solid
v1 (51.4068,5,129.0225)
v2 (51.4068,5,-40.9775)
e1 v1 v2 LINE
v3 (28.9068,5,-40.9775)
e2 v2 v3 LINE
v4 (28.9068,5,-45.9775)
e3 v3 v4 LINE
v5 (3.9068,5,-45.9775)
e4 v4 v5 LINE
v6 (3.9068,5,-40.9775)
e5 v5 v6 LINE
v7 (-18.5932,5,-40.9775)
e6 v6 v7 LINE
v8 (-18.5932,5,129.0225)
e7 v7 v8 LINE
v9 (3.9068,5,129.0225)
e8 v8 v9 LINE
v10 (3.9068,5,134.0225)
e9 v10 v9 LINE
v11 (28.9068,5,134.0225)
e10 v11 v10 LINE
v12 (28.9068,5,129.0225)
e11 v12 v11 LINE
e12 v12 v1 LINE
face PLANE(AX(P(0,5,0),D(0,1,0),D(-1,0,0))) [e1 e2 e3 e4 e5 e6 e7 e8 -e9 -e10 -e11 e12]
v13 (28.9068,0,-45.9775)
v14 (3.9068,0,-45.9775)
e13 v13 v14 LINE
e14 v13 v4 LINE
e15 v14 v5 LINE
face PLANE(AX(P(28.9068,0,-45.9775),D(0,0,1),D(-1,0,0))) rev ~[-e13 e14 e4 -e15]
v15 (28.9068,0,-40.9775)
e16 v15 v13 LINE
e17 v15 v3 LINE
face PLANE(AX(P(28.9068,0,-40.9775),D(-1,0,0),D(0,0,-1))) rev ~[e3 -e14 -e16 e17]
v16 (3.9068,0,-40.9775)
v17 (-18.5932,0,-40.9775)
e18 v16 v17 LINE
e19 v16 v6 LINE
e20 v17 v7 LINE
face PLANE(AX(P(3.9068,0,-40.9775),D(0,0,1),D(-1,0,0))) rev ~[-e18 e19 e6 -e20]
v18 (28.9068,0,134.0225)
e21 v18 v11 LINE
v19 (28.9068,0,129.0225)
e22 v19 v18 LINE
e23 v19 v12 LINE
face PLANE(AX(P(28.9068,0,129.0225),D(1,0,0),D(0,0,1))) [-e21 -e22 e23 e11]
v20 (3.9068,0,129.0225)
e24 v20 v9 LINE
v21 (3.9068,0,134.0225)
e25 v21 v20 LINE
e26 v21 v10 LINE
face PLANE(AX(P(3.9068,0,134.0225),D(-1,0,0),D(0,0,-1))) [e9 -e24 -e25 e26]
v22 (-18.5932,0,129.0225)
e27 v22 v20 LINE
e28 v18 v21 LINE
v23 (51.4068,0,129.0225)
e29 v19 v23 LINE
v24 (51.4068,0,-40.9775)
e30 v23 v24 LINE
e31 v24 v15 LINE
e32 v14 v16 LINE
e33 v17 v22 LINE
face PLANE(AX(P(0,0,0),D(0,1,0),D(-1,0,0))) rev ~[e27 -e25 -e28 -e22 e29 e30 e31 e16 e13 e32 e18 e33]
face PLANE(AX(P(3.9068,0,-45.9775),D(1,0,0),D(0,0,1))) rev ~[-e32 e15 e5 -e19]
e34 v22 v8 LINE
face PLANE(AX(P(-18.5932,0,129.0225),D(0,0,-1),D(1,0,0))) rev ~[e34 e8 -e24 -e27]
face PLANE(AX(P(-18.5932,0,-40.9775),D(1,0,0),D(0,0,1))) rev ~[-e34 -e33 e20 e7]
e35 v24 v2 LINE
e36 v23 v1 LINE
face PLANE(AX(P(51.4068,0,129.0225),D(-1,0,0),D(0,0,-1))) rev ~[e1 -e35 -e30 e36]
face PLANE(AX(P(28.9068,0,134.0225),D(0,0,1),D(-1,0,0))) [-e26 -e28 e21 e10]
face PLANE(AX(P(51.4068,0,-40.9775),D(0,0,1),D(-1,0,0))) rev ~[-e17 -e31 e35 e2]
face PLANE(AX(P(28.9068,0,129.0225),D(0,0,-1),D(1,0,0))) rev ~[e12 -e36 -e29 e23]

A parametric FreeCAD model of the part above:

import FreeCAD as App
import Part
import Sketcher

V = App.Vector

doc = App.newDocument("Part")
body = doc.addObject("PartDesign::Body", "Body")

# Sketch on XZ plane
sketch1 = body.newObject("Sketcher::SketchObject", "Sketch")
sketch1.AttachmentSupport = (doc.getObject("XZ_Plane"), [""])
sketch1.MapMode = "FlatFace"
sketch1.addGeometry([
    Part.LineSegment(V(-18.5932, -40.9775, 0), V(-18.5932, 129.0225, 0)),  # 0
    Part.LineSegment(V(-18.5932, 129.0225, 0), V(3.9068, 129.0225, 0)),  # 1
    Part.LineSegment(V(3.9068, 129.0225, 0), V(3.9068, 134.0225, 0)),  # 2
    Part.LineSegment(V(3.9068, 134.0225, 0), V(28.9068, 134.0225, 0)),  # 3
    Part.LineSegment(V(28.9068, 134.0225, 0), V(28.9068, 129.0225, 0)),  # 4
    Part.LineSegment(V(28.9068, 129.0225, 0), V(51.4068, 129.0225, 0)),  # 5
    Part.LineSegment(V(51.4068, 129.0225, 0), V(51.4068, -40.9775, 0)),  # 6
    Part.LineSegment(V(51.4068, -40.9775, 0), V(28.9068, -40.9775, 0)),  # 7
    Part.LineSegment(V(28.9068, -40.9775, 0), V(28.9068, -45.9775, 0)),  # 8
    Part.LineSegment(V(28.9068, -45.9775, 0), V(3.9068, -45.9775, 0)),  # 9
    Part.LineSegment(V(3.9068, -45.9775, 0), V(3.9068, -40.9775, 0)),  # 10
    Part.LineSegment(V(3.9068, -40.9775, 0), V(-18.5932, -40.9775, 0)),  # 11
], False)
sketch1.addConstraint([
    Sketcher.Constraint("Coincident", 0, 2, 1, 1),
    Sketcher.Constraint("Coincident", 1, 2, 2, 1),
    Sketcher.Constraint("Coincident", 2, 2, 3, 1),
    Sketcher.Constraint("Coincident", 3, 2, 4, 1),
    Sketcher.Constraint("Coincident", 4, 2, 5, 1),
    Sketcher.Constraint("Coincident", 5, 2, 6, 1),
    Sketcher.Constraint("Coincident", 6, 2, 7, 1),
    Sketcher.Constraint("Coincident", 7, 2, 8, 1),
    Sketcher.Constraint("Coincident", 8, 2, 9, 1),
    Sketcher.Constraint("Coincident", 9, 2, 10, 1),
    Sketcher.Constraint("Coincident", 10, 2, 11, 1),
    Sketcher.Constraint("Coincident", 11, 2, 0, 1),
    Sketcher.Constraint("Vertical", 0),
    Sketcher.Constraint("Horizontal", 1),
    Sketcher.Constraint("Vertical", 2),
    Sketcher.Constraint("Horizontal", 3),
    Sketcher.Constraint("Vertical", 4),
    Sketcher.Constraint("Horizontal", 5),
    Sketcher.Constraint("Vertical", 6),
    Sketcher.Constraint("Horizontal", 7),
    Sketcher.Constraint("Vertical", 8),
    Sketcher.Constraint("Horizontal", 9),
    Sketcher.Constraint("Vertical", 10),
    Sketcher.Constraint("Horizontal", 11),
    Sketcher.Constraint("Horizontal", 1, 2, 4, 2),
    Sketcher.Constraint("Horizontal", 7, 2, 10, 2),
    Sketcher.Constraint("Vertical", 4, 2, 7, 2),
    Sketcher.Constraint("Vertical", 2, 2, 9, 2),
    Sketcher.Constraint("Equal", 1, 5),
    Sketcher.Constraint("Equal", 4, 8),
    Sketcher.Constraint("DistanceX", 3, 1, 3, 2, 25.0),
    Sketcher.Constraint("DistanceY", 0, 1, 0, 2, 170.0),
    Sketcher.Constraint("DistanceY", 2, 1, 2, 2, 5.0),
    Sketcher.Constraint("DistanceX", 1, 1, 1, 2, 22.5),
    Sketcher.Constraint("DistanceX", 0, 2, -1, 1, 18.5932),
    Sketcher.Constraint("DistanceY", -1, 1, 0, 2, 129.0225),
])
pad1 = body.newObject("PartDesign::Pad", "Pad")
pad1.Profile = sketch1
pad1.Length = 5
pad1.Reversed = True

doc.recompute()
